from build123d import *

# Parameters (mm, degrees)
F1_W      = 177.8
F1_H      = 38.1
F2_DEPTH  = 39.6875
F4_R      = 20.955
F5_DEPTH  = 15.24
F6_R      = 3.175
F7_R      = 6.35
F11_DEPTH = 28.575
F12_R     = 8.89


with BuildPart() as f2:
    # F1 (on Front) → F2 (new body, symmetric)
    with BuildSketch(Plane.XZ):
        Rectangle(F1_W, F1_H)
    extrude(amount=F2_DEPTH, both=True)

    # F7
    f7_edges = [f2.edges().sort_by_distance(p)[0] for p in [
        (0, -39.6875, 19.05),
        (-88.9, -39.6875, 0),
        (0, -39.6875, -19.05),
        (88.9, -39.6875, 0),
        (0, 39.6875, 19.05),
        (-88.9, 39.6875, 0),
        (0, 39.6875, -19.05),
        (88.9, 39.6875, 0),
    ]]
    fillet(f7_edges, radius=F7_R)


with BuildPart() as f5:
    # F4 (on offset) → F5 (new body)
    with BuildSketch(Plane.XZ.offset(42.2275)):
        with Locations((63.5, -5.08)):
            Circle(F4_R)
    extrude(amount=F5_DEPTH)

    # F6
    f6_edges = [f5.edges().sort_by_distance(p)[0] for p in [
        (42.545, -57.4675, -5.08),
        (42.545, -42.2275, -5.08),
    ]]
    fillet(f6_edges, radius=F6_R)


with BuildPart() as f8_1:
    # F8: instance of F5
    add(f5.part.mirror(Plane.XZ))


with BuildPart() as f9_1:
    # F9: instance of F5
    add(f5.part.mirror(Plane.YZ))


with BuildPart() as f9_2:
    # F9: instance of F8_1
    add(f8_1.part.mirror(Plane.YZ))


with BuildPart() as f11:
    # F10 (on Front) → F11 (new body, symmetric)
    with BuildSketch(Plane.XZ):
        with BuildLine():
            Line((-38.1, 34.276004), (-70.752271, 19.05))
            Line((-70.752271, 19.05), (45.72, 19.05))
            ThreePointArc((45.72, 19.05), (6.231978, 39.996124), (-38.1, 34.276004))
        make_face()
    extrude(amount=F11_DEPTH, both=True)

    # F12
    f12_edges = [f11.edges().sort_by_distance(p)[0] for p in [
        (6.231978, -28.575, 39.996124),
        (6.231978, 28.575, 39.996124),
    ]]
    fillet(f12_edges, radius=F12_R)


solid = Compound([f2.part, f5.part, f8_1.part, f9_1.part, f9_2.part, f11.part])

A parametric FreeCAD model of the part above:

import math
import FreeCAD as App
import Part
import Sketcher
from FreeCAD import Vector
Q = App.Units.Quantity


def edges_at(feature, points):
    """Names of the edges that pass closest to the given points."""
    edges = feature.Shape.Edges
    near = lambda p: min(range(len(edges)), key=lambda i: edges[i].distToShape(Part.Vertex(*p))[0])
    return sorted({f"Edge{near(p) + 1}" for p in points})

doc = App.newDocument("Part")
body = doc.addObject("PartDesign::Body", "Body")

# Sketch on XZ plane
sketch1 = doc.addObject("Sketcher::SketchObject", "Sketch")
body.addObject(sketch1)
sketch1.AttachmentSupport = (doc.XZ_Plane, [""])
sketch1.MapMode = "FlatFace"
sketch1.addGeometry([
    Part.LineSegment(Vector(-89, 19, 0), Vector(-89, -19, 0)),
    Part.LineSegment(Vector(-89, -19, 0), Vector(89, -19, 0)),
    Part.LineSegment(Vector(89, -19, 0), Vector(89, 19, 0)),
    Part.LineSegment(Vector(89, 19, 0), Vector(-89, 19, 0)),
], False)
sketch1.addConstraint([
    Sketcher.Constraint("Coincident", 0, 2, 1, 1),
    Sketcher.Constraint("Coincident", 1, 2, 2, 1),
    Sketcher.Constraint("Coincident", 2, 2, 3, 1),
    Sketcher.Constraint("Coincident", 3, 2, 0, 1),
    Sketcher.Constraint("Vertical", 0),
    Sketcher.Constraint("Horizontal", 1),
    Sketcher.Constraint("Vertical", 2),
    Sketcher.Constraint("Horizontal", 3),
    Sketcher.Constraint("Symmetric", 0, 2, 2, 2, -1, 1),
    Sketcher.Constraint("DistanceX", 1, 1, 1, 2, Q("7 in")),
    Sketcher.Constraint("DistanceY", 0, 2, 0, 1, Q("1.5 in")),
])
pad1 = doc.addObject("PartDesign::Pad", "Pad")
body.addObject(pad1)
pad1.Profile = sketch1
pad1.Length = Q("3.125 in")
pad1.Midplane = True
doc.recompute()

fillet = doc.addObject("PartDesign::Fillet", "Fillet")
body.addObject(fillet)
fillet.Base = (pad1, edges_at(pad1, [
    (0, -39.688, 19.05),
    (-88.9, -39.688, 0),
    (0, -39.688, -19.05),
    (88.9, -39.688, 0),
    (0, 39.688, 19.05),
    (-88.9, 39.688, 0),
    (0, 39.688, -19.05),
    (88.9, 39.688, 0),
]))
fillet.Radius = Q("0.25 in")
body2 = doc.addObject("PartDesign::Body", "Body001")

# Sketch on XZ plane
sketch2 = doc.addObject("Sketcher::SketchObject", "Sketch001")
body2.addObject(sketch2)
sketch2.AttachmentSupport = (doc.getObject("XZ_Plane001"), [""])
sketch2.MapMode = "FlatFace"
sketch2.AttachmentOffset = App.Placement(Vector(0, 0, 1.6625 * 25.4), App.Rotation())
sketch2.addGeometry(Part.Circle(Vector(64, -5, 0), Vector(0, 0, 1), 21), False)
sketch2.addConstraint([
    Sketcher.Constraint("Diameter", 0, Q("1.65 in")),
    Sketcher.Constraint("DistanceX", -1, 1, 0, 3, Q("2.5 in")),
    Sketcher.Constraint("DistanceY", 0, 3, -1, 1, Q("0.2 in")),
])
pad2 = doc.addObject("PartDesign::Pad", "Pad001")
body2.addObject(pad2)
pad2.Profile = sketch2
pad2.Length = Q("0.6 in")
doc.recompute()

fillet2 = doc.addObject("PartDesign::Fillet", "Fillet001")
body2.addObject(fillet2)
fillet2.Base = (pad2, edges_at(pad2, [(42.545, -57.468, -5.08), (42.545, -42.227, -5.08)]))
fillet2.Radius = Q("0.125 in")
body3 = doc.addObject("PartDesign::Body", "Body002")
doc.recompute()

mirroring = doc.addObject("Part::Mirroring", "Mirroring")
mirroring.Source = body2
mirroring.Base = Vector(0, 0, 0)
mirroring.Normal = Vector(0, -1, 0)
body3.BaseFeature = mirroring
doc.recompute()
body4 = doc.addObject("PartDesign::Body", "Body003")
doc.recompute()

mirroring2 = doc.addObject("Part::Mirroring", "Mirroring001")
mirroring2.Source = body2
mirroring2.Base = Vector(0, 0, 0)
mirroring2.Normal = Vector(1, 0, 0)
body4.BaseFeature = mirroring2
doc.recompute()
body5 = doc.addObject("PartDesign::Body", "Body004")
doc.recompute()

mirroring3 = doc.addObject("Part::Mirroring", "Mirroring002")
mirroring3.Source = body3
mirroring3.Base = Vector(0, 0, 0)
mirroring3.Normal = Vector(1, 0, 0)
body5.BaseFeature = mirroring3
doc.recompute()
body6 = doc.addObject("PartDesign::Body", "Body005")

# Sketch on XZ plane
sketch3 = doc.addObject("Sketcher::SketchObject", "Sketch002")
body6.addObject(sketch3)
sketch3.AttachmentSupport = (doc.getObject("XZ_Plane005"), [""])
sketch3.MapMode = "FlatFace"
sketch3.addGeometry([
    Part.LineSegment(Vector(-38, 34, 0), Vector(-71, 19, 0)),
    Part.LineSegment(Vector(-71, 19, 0), Vector(46, 19, 0)),
    Part.ArcOfCircle(Part.Circle(Vector(-7, -33, 0), Vector(0, 0, 1), 74), math.radians(44), math.radians(115)),
], False)
sketch3.addConstraint([
    Sketcher.Constraint("Coincident", 0, 2, 1, 1),
    Sketcher.Constraint("Coincident", 1, 2, 2, 1),
    Sketcher.Constraint("Tangent", 2, 2, 0, 1),
    Sketcher.Constraint("Horizontal", 1),
    Sketcher.Constraint("Angle", 0, Q("-155 deg")),
    Sketcher.Constraint("DistanceX", -1, 1, 1, 2, Q("1.8 in")),
    Sketcher.Constraint("DistanceX", 2, 2, -1, 1, Q("1.5 in")),
    Sketcher.Constraint("DistanceY", -1, 1, 0, 2, Q("0.75 in")),
    Sketcher.Constraint("Radius", 2, 73.721411),
])
pad3 = doc.addObject("PartDesign::Pad", "Pad002")
body6.addObject(pad3)
pad3.Profile = sketch3
pad3.Length = Q("2.25 in")
pad3.Midplane = True
doc.recompute()

fillet3 = doc.addObject("PartDesign::Fillet", "Fillet002")
body6.addObject(fillet3)
fillet3.Base = (pad3, edges_at(pad3, [(6.232, -28.575, 39.996), (6.232, 28.575, 39.996)]))
fillet3.Radius = Q("0.35 in")
mirroring.Visibility = False
mirroring2.Visibility = False
mirroring3.Visibility = False

doc.recompute()
